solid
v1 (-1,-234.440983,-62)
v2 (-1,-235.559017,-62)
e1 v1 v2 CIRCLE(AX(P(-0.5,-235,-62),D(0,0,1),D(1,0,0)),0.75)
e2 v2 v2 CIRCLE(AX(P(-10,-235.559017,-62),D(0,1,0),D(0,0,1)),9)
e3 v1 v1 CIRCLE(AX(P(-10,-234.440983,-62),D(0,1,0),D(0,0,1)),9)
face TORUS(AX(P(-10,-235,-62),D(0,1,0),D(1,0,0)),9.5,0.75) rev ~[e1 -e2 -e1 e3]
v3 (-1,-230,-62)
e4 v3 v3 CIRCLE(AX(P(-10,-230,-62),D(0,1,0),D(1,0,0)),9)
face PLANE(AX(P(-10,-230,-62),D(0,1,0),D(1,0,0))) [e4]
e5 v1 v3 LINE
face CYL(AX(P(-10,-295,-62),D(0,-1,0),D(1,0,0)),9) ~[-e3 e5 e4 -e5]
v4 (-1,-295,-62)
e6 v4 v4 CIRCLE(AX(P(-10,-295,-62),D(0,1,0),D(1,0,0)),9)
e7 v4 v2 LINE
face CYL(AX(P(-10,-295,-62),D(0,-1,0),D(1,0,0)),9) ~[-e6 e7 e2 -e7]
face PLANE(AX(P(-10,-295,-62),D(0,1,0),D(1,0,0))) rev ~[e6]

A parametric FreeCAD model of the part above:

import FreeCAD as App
import Part
import Sketcher
from FreeCAD import Vector
Q = App.Units.Quantity

doc = App.newDocument("Part")
body = doc.addObject("PartDesign::Body", "Body")

# Sketch on XZ plane
sketch1 = body.newObject("Sketcher::SketchObject", "Sketch")
sketch1.AttachmentSupport = (doc.getObject("XZ_Plane"), [""])
sketch1.MapMode = "FlatFace"
sketch1.addGeometry(Part.Circle(Vector(9.5, 60, 0), Vector(0, 0, 1), 0.75), False)
sketch1.addConstraint(Sketcher.Constraint("Diameter", 0, Q("1.5 mm")))
sketch1.addConstraint(Sketcher.Constraint("DistanceY", -1, 1, 0, 3, Q("60 mm")))
sketch1.addConstraint(Sketcher.Constraint("DistanceX", -1, 1, 0, 3, Q("9.5 mm")))
revolution = body.newObject("PartDesign::Revolution", "Revolution")
revolution.Profile = sketch1
revolution.ReferenceAxis = (sketch1, ["V_Axis"])
revolution.Angle = 360
body2 = doc.addObject("PartDesign::Body", "Body001")

# Sketch on XY plane
sketch2 = body2.newObject("Sketcher::SketchObject", "Sketch001")
sketch2.AttachmentSupport = (doc.getObject("XY_Plane001"), [""])
sketch2.MapMode = "FlatFace"
sketch2.addGeometry(Part.Circle(Vector(0, 0, 0), Vector(0, 0, 1), 9), False)
sketch2.addConstraint(Sketcher.Constraint("Coincident", 0, 3, -1, 1))
sketch2.addConstraint(Sketcher.Constraint("Diameter", 0, Q("18 mm")))
pad1 = body2.newObject("PartDesign::Pad", "Pad")
pad1.Profile = sketch2
pad1.Length = 65
doc.recompute()

boolean = body2.newObject("PartDesign::Boolean", "Boolean")
boolean.Type = "Cut"
boolean.addObjects([body])
body3 = doc.addObject("PartDesign::Body", "Body002")
doc.recompute()

body2.Placement = App.Placement(Vector(-10, -295, -62), App.Rotation(Vector(-1, 0, 0), 90))
boolean2 = body3.newObject("PartDesign::Boolean", "Boolean001")
boolean2.Type = "Fuse"
boolean2.addObjects([body2])

doc.recompute()
